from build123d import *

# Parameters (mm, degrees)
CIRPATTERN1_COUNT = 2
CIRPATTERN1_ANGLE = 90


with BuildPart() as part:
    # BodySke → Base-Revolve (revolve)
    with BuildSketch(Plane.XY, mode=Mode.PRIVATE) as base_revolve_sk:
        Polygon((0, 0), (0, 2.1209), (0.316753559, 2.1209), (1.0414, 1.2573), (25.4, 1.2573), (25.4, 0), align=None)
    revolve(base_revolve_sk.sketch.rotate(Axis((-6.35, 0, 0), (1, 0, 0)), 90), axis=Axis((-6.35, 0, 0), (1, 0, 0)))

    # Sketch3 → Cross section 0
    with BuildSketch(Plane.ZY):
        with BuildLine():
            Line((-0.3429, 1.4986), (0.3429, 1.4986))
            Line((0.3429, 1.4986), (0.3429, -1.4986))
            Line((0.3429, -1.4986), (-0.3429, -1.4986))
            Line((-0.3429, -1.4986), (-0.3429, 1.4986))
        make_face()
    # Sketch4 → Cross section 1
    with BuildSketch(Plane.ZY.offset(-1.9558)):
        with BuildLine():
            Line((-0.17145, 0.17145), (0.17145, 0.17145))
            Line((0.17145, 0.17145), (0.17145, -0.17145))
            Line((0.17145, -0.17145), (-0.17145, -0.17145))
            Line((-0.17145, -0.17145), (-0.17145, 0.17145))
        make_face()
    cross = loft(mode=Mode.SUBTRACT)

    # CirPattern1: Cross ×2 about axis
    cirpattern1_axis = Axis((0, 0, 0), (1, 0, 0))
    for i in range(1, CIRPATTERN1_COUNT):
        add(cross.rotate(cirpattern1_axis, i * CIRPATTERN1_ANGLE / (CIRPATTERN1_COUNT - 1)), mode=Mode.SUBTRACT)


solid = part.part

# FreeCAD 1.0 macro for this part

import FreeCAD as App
import Part
import Sketcher
Q = App.Units.Quantity

doc = App.newDocument("Part")
body = doc.addObject("PartDesign::Body", "Body")

# Sketch on XY plane
sketch1 = doc.addObject("Sketcher::SketchObject", "Sketch")
body.addObject(sketch1)
sketch1.AttachmentSupport = (doc.XY_Plane, [""])
sketch1.MapMode = "FlatFace"
sketch1.addGeometry([
    Part.LineSegment(App.Vector(0, 2.12, 0), App.Vector(0, 0, 0)),  # 0
    Part.LineSegment(App.Vector(0, 0, 0), App.Vector(25.4, 0, 0)),  # 1
    Part.LineSegment(App.Vector(25.4, 0, 0), App.Vector(25.4, 1.26, 0)),  # 2
    Part.LineSegment(App.Vector(25.4, 1.26, 0), App.Vector(1.04, 1.26, 0)),  # 3
    Part.LineSegment(App.Vector(1.04, 1.26, 0), App.Vector(0.32, 2.12, 0)),  # 4
    Part.LineSegment(App.Vector(0.32, 2.12, 0), App.Vector(0, 2.12, 0)),  # 5
], False)
sketch1.addConstraint([
    Sketcher.Constraint("Coincident", 0, 2, 1, 1),
    Sketcher.Constraint("Coincident", 1, 2, 2, 1),
    Sketcher.Constraint("Coincident", 2, 2, 3, 1),
    Sketcher.Constraint("Coincident", 3, 2, 4, 1),
    Sketcher.Constraint("Coincident", 4, 2, 5, 1),
    Sketcher.Constraint("Coincident", 5, 2, 0, 1),
    Sketcher.Constraint("Vertical", 0),
    Sketcher.Constraint("Horizontal", 1),
    Sketcher.Constraint("Vertical", 2),
    Sketcher.Constraint("Horizontal", 3),
    Sketcher.Constraint("Horizontal", 5),
    Sketcher.Constraint("Coincident", 0, 2, -1, 1),
    Sketcher.Constraint("DistanceX", 1, 1, 1, 2, Q("1 in")),
    Sketcher.Constraint("Angle", 4, Q("130 deg")),
    Sketcher.Constraint("DistanceX", 3, 2, 3, 1, Q("0.959 in")),
    Sketcher.Constraint("DistanceY", 0, 2, 0, 1, Q("0.0835 in")),
    Sketcher.Constraint("DistanceY", 2, 1, 2, 2, Q("0.0495 in")),
])
revolution = doc.addObject("PartDesign::Revolution", "Revolution")
body.addObject(revolution)
revolution.Profile = sketch1
revolution.ReferenceAxis = (sketch1, ["H_Axis"])
revolution.Angle = 360

# Sketch on YZ plane
sketch2 = doc.addObject("Sketcher::SketchObject", "Sketch001")
body.addObject(sketch2)
sketch2.AttachmentSupport = (doc.YZ_Plane, [""])
sketch2.MapMode = "FlatFace"
sketch2.addGeometry([
    Part.LineSegment(App.Vector(1.5, 0.3, 0), App.Vector(1.5, -0.3, 0)),
    Part.LineSegment(App.Vector(1.5, -0.3, 0), App.Vector(-1.5, -0.3, 0)),
    Part.LineSegment(App.Vector(-1.5, -0.3, 0), App.Vector(-1.5, 0.3, 0)),
    Part.LineSegment(App.Vector(-1.5, 0.3, 0), App.Vector(1.5, 0.3, 0)),
], False)
sketch2.addConstraint([
    Sketcher.Constraint("Coincident", 0, 2, 1, 1),
    Sketcher.Constraint("Coincident", 1, 2, 2, 1),
    Sketcher.Constraint("Coincident", 2, 2, 3, 1),
    Sketcher.Constraint("Coincident", 3, 2, 0, 1),
    Sketcher.Constraint("Vertical", 0),
    Sketcher.Constraint("Horizontal", 1),
    Sketcher.Constraint("Vertical", 2),
    Sketcher.Constraint("Horizontal", 3),
    Sketcher.Constraint("Symmetric", 0, 2, 2, 2, -1, 1),
    Sketcher.Constraint("DistanceX", 1, 2, 1, 1, Q("0.118 in")),
    Sketcher.Constraint("DistanceY", 0, 2, 0, 1, Q("0.027 in")),
])

# Sketch on YZ plane
sketch3 = doc.addObject("Sketcher::SketchObject", "Sketch002")
body.addObject(sketch3)
sketch3.AttachmentSupport = (doc.YZ_Plane, [""])
sketch3.MapMode = "FlatFace"
sketch3.AttachmentOffset = App.Placement(App.Vector(0, 0, 0.077 * 25.4), App.Rotation())
sketch3.addGeometry([
    Part.LineSegment(App.Vector(0.17, 0.17, 0), App.Vector(0.17, -0.17, 0)),
    Part.LineSegment(App.Vector(0.17, -0.17, 0), App.Vector(-0.17, -0.17, 0)),
    Part.LineSegment(App.Vector(-0.17, -0.17, 0), App.Vector(-0.17, 0.17, 0)),
    Part.LineSegment(App.Vector(-0.17, 0.17, 0), App.Vector(0.17, 0.17, 0)),
], False)
sketch3.addConstraint([
    Sketcher.Constraint("Coincident", 0, 2, 1, 1),
    Sketcher.Constraint("Coincident", 1, 2, 2, 1),
    Sketcher.Constraint("Coincident", 2, 2, 3, 1),
    Sketcher.Constraint("Coincident", 3, 2, 0, 1),
    Sketcher.Constraint("Vertical", 0),
    Sketcher.Constraint("Horizontal", 1),
    Sketcher.Constraint("Vertical", 2),
    Sketcher.Constraint("Horizontal", 3),
    Sketcher.Constraint("Symmetric", 0, 2, 2, 2, -1, 1),
    Sketcher.Constraint("Equal", 3, 0),
    Sketcher.Constraint("DistanceX", 1, 2, 1, 1, Q("0.0135 in")),
])

subtractiveloft = doc.addObject("PartDesign::SubtractiveLoft", "SubtractiveLoft")
body.addObject(subtractiveloft)
subtractiveloft.Profile = sketch2
subtractiveloft.Sections = [sketch3]
doc.recompute()

polarpattern = doc.addObject("PartDesign::PolarPattern", "PolarPattern")
body.addObject(polarpattern)
polarpattern.Originals = [subtractiveloft]
polarpattern.Axis = (doc.X_Axis, [""])
polarpattern.Angle = 90
polarpattern.Occurrences = 2
body.Tip = polarpattern

doc.recompute()
